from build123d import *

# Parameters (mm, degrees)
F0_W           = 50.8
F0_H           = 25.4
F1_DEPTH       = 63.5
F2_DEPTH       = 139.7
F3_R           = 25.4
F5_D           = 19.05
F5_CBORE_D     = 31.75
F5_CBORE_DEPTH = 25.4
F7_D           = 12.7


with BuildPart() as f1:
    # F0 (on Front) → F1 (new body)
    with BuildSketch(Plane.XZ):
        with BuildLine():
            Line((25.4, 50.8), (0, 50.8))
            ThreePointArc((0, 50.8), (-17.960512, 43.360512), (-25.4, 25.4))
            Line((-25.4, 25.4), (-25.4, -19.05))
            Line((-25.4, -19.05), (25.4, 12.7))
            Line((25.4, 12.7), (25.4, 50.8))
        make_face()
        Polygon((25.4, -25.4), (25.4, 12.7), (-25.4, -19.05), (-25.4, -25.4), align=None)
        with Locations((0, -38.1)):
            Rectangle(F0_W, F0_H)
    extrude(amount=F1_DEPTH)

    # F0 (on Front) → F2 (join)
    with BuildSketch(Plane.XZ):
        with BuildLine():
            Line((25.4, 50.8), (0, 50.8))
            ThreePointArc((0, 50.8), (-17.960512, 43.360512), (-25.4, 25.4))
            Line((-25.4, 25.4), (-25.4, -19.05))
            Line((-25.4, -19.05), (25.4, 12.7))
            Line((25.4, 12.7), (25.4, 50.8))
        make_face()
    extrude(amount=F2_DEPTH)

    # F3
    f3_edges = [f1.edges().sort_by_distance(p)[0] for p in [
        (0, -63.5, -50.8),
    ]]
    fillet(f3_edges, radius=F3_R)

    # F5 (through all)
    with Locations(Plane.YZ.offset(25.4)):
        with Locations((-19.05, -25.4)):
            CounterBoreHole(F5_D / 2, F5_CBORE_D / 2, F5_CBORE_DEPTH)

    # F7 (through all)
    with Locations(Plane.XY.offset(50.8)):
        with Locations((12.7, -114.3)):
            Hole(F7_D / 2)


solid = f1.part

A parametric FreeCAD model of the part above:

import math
import FreeCAD as App
import Part
import Sketcher
Q = App.Units.Quantity


def edges_at(feature, points):
    """Names of the edges that pass closest to the given points."""
    edges = feature.Shape.Edges
    near = lambda p: min(range(len(edges)), key=lambda i: edges[i].distToShape(Part.Vertex(*p))[0])
    return sorted({f"Edge{near(p) + 1}" for p in points})

doc = App.newDocument("Part")
body = doc.addObject("PartDesign::Body", "Body")

# Sketch on XZ plane
sketch1 = doc.addObject("Sketcher::SketchObject", "Sketch")
body.addObject(sketch1)
sketch1.AttachmentSupport = (doc.XZ_Plane, [""])
sketch1.MapMode = "FlatFace"
sketch1.addGeometry([
    Part.LineSegment(App.Vector(25, 51, 0), App.Vector(0, 51, 0)),  # 0
    Part.ArcOfCircle(Part.Circle(App.Vector(0, 25, 0), App.Vector(0, 0, 1), 25), math.radians(90), math.radians(180)),  # 1
    Part.LineSegment(App.Vector(-25, 25, 0), App.Vector(-25, -51, 0)),  # 2
    Part.LineSegment(App.Vector(-25, -51, 0), App.Vector(25, -51, 0)),  # 3
    Part.LineSegment(App.Vector(25, -51, 0), App.Vector(25, 51, 0)),  # 4
], False)
sketch1.addConstraint([
    Sketcher.Constraint("Tangent", 0, 2, 1, 1),
    Sketcher.Constraint("Tangent", 1, 2, 2, 1),
    Sketcher.Constraint("Coincident", 2, 2, 3, 1),
    Sketcher.Constraint("Coincident", 3, 2, 4, 1),
    Sketcher.Constraint("Coincident", 4, 2, 0, 1),
    Sketcher.Constraint("Horizontal", 0),
    Sketcher.Constraint("Vertical", 2),
    Sketcher.Constraint("Horizontal", 3),
    Sketcher.Constraint("Vertical", 4),
    Sketcher.Constraint("Symmetric", 2, 2, 4, 2, -1, 1),
    Sketcher.Constraint("PointOnObject", 1, 3, -2),
    Sketcher.Constraint("Radius", 1, Q("1 in")),
    Sketcher.Constraint("DistanceY", 2, 2, 2, 1, Q("3 in")),
])
pad1 = doc.addObject("PartDesign::Pad", "Pad")
body.addObject(pad1)
pad1.Profile = sketch1
pad1.Length = Q("2.5 in")

# Sketch on XZ plane
sketch2 = doc.addObject("Sketcher::SketchObject", "Sketch001")
body.addObject(sketch2)
sketch2.AttachmentSupport = (doc.XZ_Plane, [""])
sketch2.MapMode = "FlatFace"
sketch2.addGeometry([
    Part.LineSegment(App.Vector(25, 51, 0), App.Vector(0, 51, 0)),  # 0
    Part.ArcOfCircle(Part.Circle(App.Vector(0, 25, 0), App.Vector(0, 0, 1), 25), math.radians(90), math.radians(180)),  # 1
    Part.LineSegment(App.Vector(-25, 25, 0), App.Vector(-25, -19, 0)),  # 2
    Part.LineSegment(App.Vector(-25, -19, 0), App.Vector(25, 13, 0)),  # 3
    Part.LineSegment(App.Vector(25, 13, 0), App.Vector(25, 51, 0)),  # 4
], False)
sketch2.addConstraint([
    Sketcher.Constraint("Tangent", 0, 2, 1, 1),
    Sketcher.Constraint("Tangent", 1, 2, 2, 1),
    Sketcher.Constraint("Coincident", 2, 2, 3, 1),
    Sketcher.Constraint("Coincident", 3, 2, 4, 1),
    Sketcher.Constraint("Coincident", 4, 2, 0, 1),
    Sketcher.Constraint("Horizontal", 0),
    Sketcher.Constraint("Vertical", 2),
    Sketcher.Constraint("Vertical", 4),
    Sketcher.Constraint("PointOnObject", 1, 3, -2),
    Sketcher.Constraint("Radius", 1, Q("1 in")),
    Sketcher.Constraint("DistanceX", 0, 2, 0, 1, Q("1 in")),
    Sketcher.Constraint("DistanceY", 4, 1, 4, 2, Q("1.5 in")),
    Sketcher.Constraint("DistanceY", -1, 1, 1, 3, Q("1 in")),
    Sketcher.Constraint("DistanceY", 2, 2, 2, 1, Q("1.75 in")),
])
pad2 = doc.addObject("PartDesign::Pad", "Pad001")
body.addObject(pad2)
pad2.Profile = sketch2
pad2.Length = Q("5.5 in")
doc.recompute()

fillet = doc.addObject("PartDesign::Fillet", "Fillet")
body.addObject(fillet)
fillet.Base = (pad2, edges_at(pad2, [(0, -63.5, -50.8)]))
fillet.Radius = Q("1 in")

# Sketch on YZ plane
sketch3 = doc.addObject("Sketcher::SketchObject", "Sketch002")
body.addObject(sketch3)
sketch3.AttachmentSupport = (doc.YZ_Plane, [""])
sketch3.MapMode = "FlatFace"
sketch3.AttachmentOffset = App.Placement(App.Vector(0, 0, 1 * 25.4), App.Rotation())
sketch3.addGeometry(Part.Circle(App.Vector(-19, -25, 0), App.Vector(0, 0, 1), 10), False)
sketch3.addConstraint([
    Sketcher.Constraint("Diameter", 0, Q("0.75 in")),
    Sketcher.Constraint("DistanceY", 0, 3, -1, 1, Q("1 in")),
    Sketcher.Constraint("DistanceX", 0, 3, -1, 1, Q("0.75 in")),
])
doc.recompute()
hole = doc.addObject("PartDesign::Hole", "Hole")
body.addObject(hole)
hole.Profile = sketch3
hole.ThreadType = "None"
hole.Diameter = Q("0.75 in")
hole.DepthType = "ThroughAll"
hole.HoleCutType = "Counterbore"
hole.HoleCutDiameter = Q("1.25 in")
hole.HoleCutDepth = Q("1 in")

# Sketch on XY plane
sketch4 = doc.addObject("Sketcher::SketchObject", "Sketch003")
body.addObject(sketch4)
sketch4.AttachmentSupport = (doc.XY_Plane, [""])
sketch4.MapMode = "FlatFace"
sketch4.AttachmentOffset = App.Placement(App.Vector(0, 0, 2 * 25.4), App.Rotation())
sketch4.addGeometry(Part.Circle(App.Vector(13, -114, 0), App.Vector(0, 0, 1), 6), False)
sketch4.addConstraint([
    Sketcher.Constraint("Diameter", 0, Q("0.5 in")),
    Sketcher.Constraint("DistanceX", -1, 1, 0, 3, Q("0.5 in")),
    Sketcher.Constraint("DistanceY", 0, 3, -1, 1, Q("4.5 in")),
])
doc.recompute()
hole2 = doc.addObject("PartDesign::Hole", "Hole001")
body.addObject(hole2)
hole2.Profile = sketch4
hole2.ThreadType = "None"
hole2.Diameter = Q("0.5 in")
hole2.DepthType = "ThroughAll"

doc.recompute()
